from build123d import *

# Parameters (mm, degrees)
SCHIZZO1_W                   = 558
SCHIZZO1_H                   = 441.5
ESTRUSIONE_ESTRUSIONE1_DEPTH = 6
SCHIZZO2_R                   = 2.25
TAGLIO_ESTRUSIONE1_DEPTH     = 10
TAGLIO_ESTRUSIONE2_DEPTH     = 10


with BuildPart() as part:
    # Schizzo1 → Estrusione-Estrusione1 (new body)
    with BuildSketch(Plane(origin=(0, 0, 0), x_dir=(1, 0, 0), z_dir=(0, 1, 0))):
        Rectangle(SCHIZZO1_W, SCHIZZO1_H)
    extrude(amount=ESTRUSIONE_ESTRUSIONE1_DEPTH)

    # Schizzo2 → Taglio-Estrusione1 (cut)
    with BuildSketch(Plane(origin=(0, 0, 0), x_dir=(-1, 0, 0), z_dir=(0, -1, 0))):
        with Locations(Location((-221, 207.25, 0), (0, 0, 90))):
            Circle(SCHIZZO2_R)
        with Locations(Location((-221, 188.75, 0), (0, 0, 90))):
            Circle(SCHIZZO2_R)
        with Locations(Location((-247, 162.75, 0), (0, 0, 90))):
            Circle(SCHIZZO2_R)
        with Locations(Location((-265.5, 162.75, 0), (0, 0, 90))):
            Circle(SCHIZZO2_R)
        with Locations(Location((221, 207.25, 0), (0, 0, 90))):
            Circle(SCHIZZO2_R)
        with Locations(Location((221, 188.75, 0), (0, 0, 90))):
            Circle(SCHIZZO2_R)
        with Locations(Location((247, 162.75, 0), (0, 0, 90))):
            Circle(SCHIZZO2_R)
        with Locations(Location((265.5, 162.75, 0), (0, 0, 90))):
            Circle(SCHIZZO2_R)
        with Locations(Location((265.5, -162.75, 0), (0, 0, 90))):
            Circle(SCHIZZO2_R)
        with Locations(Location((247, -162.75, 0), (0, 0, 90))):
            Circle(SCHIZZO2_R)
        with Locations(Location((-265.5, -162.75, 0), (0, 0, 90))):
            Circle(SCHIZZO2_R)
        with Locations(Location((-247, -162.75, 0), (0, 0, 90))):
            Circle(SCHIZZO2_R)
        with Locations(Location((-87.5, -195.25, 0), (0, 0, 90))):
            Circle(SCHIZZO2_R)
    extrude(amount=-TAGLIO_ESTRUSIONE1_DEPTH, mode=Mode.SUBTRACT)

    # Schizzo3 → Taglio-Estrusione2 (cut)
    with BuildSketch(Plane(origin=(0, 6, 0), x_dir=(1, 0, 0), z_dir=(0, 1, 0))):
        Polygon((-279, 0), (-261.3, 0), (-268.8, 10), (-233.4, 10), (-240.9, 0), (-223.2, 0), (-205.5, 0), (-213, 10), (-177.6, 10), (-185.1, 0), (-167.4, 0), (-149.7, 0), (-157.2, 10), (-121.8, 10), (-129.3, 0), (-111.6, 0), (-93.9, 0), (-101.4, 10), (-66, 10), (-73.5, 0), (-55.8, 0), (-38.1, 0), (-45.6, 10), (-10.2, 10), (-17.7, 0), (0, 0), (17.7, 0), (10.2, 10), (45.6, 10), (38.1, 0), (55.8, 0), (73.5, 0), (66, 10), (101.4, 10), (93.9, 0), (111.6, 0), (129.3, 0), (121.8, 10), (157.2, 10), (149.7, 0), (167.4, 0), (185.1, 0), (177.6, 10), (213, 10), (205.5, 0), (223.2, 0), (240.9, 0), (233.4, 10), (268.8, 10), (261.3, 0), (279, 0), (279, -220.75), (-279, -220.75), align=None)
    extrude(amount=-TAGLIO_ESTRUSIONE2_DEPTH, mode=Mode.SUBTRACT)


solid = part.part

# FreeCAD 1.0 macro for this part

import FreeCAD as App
import Part
import Sketcher

V = App.Vector
Q = App.Units.Quantity

doc = App.newDocument("Part")
body = doc.addObject("PartDesign::Body", "Body")

# Sketch on XZ plane
sketch1 = body.newObject("Sketcher::SketchObject", "Sketch")
sketch1.AttachmentSupport = (doc.getObject("XZ_Plane"), [""])
sketch1.MapMode = "FlatFace"
sketch1.addGeometry([
    Part.LineSegment(V(-279, -221, 0), V(-279, 221, 0)),
    Part.LineSegment(V(-279, 221, 0), V(279, 221, 0)),
    Part.LineSegment(V(279, 221, 0), V(279, -221, 0)),
    Part.LineSegment(V(279, -221, 0), V(-279, -221, 0)),
], False)
sketch1.addConstraint([
    Sketcher.Constraint("Coincident", 0, 2, 1, 1),
    Sketcher.Constraint("Coincident", 1, 2, 2, 1),
    Sketcher.Constraint("Coincident", 2, 2, 3, 1),
    Sketcher.Constraint("Coincident", 3, 2, 0, 1),
    Sketcher.Constraint("Vertical", 0),
    Sketcher.Constraint("Horizontal", 1),
    Sketcher.Constraint("Vertical", 2),
    Sketcher.Constraint("Horizontal", 3),
    Sketcher.Constraint("Symmetric", 0, 2, 2, 2, -1, 1),
    Sketcher.Constraint("DistanceX", 1, 1, 1, 2, Q("558 mm")),
    Sketcher.Constraint("DistanceY", 0, 1, 0, 2, Q("441.5 mm")),
])
pad1 = body.newObject("PartDesign::Pad", "Pad")
pad1.Profile = sketch1
pad1.Length = 6
pad1.Reversed = True

# Sketch on XZ plane
sketch2 = body.newObject("Sketcher::SketchObject", "Sketch001")
sketch2.AttachmentSupport = (doc.getObject("XZ_Plane"), [""])
sketch2.MapMode = "FlatFace"
sketch2.addGeometry([
    Part.Circle(V(221, -207.2, 0), V(0, 0, 1), 2.2),  # 0
    Part.Circle(V(221, -188.8, 0), V(0, 0, 1), 2.2),  # 1
    Part.Circle(V(247, -162.8, 0), V(0, 0, 1), 2.2),  # 2
    Part.Circle(V(265.5, -162.8, 0), V(0, 0, 1), 2.2),  # 3
    Part.Circle(V(-221, -207.2, 0), V(0, 0, 1), 2.2),  # 4
    Part.Circle(V(-221, -188.8, 0), V(0, 0, 1), 2.2),  # 5
    Part.Circle(V(-247, -162.8, 0), V(0, 0, 1), 2.2),  # 6
    Part.Circle(V(-265.5, -162.8, 0), V(0, 0, 1), 2.2),  # 7
    Part.Circle(V(-265.5, 162.8, 0), V(0, 0, 1), 2.2),  # 8
    Part.Circle(V(-247, 162.8, 0), V(0, 0, 1), 2.2),  # 9
    Part.Circle(V(265.5, 162.8, 0), V(0, 0, 1), 2.2),  # 10
    Part.Circle(V(247, 162.8, 0), V(0, 0, 1), 2.2),  # 11
    Part.Circle(V(87.5, 195.2, 0), V(0, 0, 1), 2.2),  # 12
], False)
sketch2.addConstraint([
    Sketcher.Constraint("Equal", 0, 1),
    Sketcher.Constraint("Equal", 1, 2),
    Sketcher.Constraint("Equal", 2, 3),
    Sketcher.Constraint("Equal", 3, 4),
    Sketcher.Constraint("Equal", 4, 5),
    Sketcher.Constraint("Equal", 5, 6),
    Sketcher.Constraint("Equal", 6, 7),
    Sketcher.Constraint("Equal", 7, 8),
    Sketcher.Constraint("Equal", 8, 9),
    Sketcher.Constraint("Equal", 9, 10),
    Sketcher.Constraint("Equal", 10, 11),
    Sketcher.Constraint("Equal", 11, 12),
    Sketcher.Constraint("Symmetric", 3, 3, 8, 3, -1, 1),
    Sketcher.Constraint("Symmetric", 2, 3, 9, 3, -1, 1),
    Sketcher.Constraint("Symmetric", 7, 3, 10, 3, -1, 1),
    Sketcher.Constraint("Symmetric", 6, 3, 11, 3, -1, 1),
    Sketcher.Constraint("Symmetric", 0, 3, 4, 3, -2),
    Sketcher.Constraint("Symmetric", 1, 3, 5, 3, -2),
    Sketcher.Constraint("Symmetric", 2, 3, 6, 3, -2),
    Sketcher.Constraint("Symmetric", 3, 3, 7, 3, -2),
    Sketcher.Constraint("Horizontal", 2, 3, 3, 3),
    Sketcher.Constraint("Vertical", 0, 3, 1, 3),
    Sketcher.Constraint("Diameter", 0, Q("4.5 mm")),
    Sketcher.Constraint("DistanceX", -1, 1, 0, 3, Q("221 mm")),
    Sketcher.Constraint("DistanceX", -1, 1, 2, 3, Q("247 mm")),
    Sketcher.Constraint("DistanceY", 1, 3, 2, 3, Q("26 mm")),
    Sketcher.Constraint("DistanceY", 4, 3, 8, 3, Q("370 mm")),
    Sketcher.Constraint("DistanceX", 12, 3, 10, 3, Q("178 mm")),
    Sketcher.Constraint("DistanceX", 8, 3, 12, 3, Q("353 mm")),
    Sketcher.Constraint("DistanceY", 2, 3, 12, 3, Q("358 mm")),
    Sketcher.Constraint("DistanceY", 0, 3, 1, 3, Q("18.5 mm")),
])
pocket1 = body.newObject("PartDesign::Pocket", "Pocket")
pocket1.Profile = sketch2
pocket1.Length = 10

# Sketch on XZ plane
sketch3 = body.newObject("Sketcher::SketchObject", "Sketch002")
sketch3.AttachmentSupport = (doc.getObject("XZ_Plane"), [""])
sketch3.MapMode = "FlatFace"
sketch3.AttachmentOffset = App.Placement(V(0, 0, -6), App.Rotation())
sketch3.addGeometry([
    Part.LineSegment(V(-261, 0, 0), V(-279, 0, 0)),  # 0
    Part.LineSegment(V(-279, 0, 0), V(-279, 221, 0)),  # 1
    Part.LineSegment(V(-279, 221, 0), V(279, 221, 0)),  # 2
    Part.LineSegment(V(279, 221, 0), V(279, 0, 0)),  # 3
    Part.LineSegment(V(279, 0, 0), V(261, 0, 0)),  # 4
    Part.LineSegment(V(261, 0, 0), V(269, -10, 0)),  # 5
    Part.LineSegment(V(269, -10, 0), V(233, -10, 0)),  # 6
    Part.LineSegment(V(233, -10, 0), V(241, 0, 0)),  # 7
    Part.LineSegment(V(241, 0, 0), V(206, 0, 0)),  # 8
    Part.LineSegment(V(206, 0, 0), V(213, -10, 0)),  # 9
    Part.LineSegment(V(213, -10, 0), V(178, -10, 0)),  # 10
    Part.LineSegment(V(178, -10, 0), V(185, 0, 0)),  # 11
    Part.LineSegment(V(185, 0, 0), V(150, 0, 0)),  # 12
    Part.LineSegment(V(150, 0, 0), V(157, -10, 0)),  # 13
    Part.LineSegment(V(157, -10, 0), V(122, -10, 0)),  # 14
    Part.LineSegment(V(122, -10, 0), V(129, 0, 0)),  # 15
    Part.LineSegment(V(129, 0, 0), V(94, 0, 0)),  # 16
    Part.LineSegment(V(94, 0, 0), V(101, -10, 0)),  # 17
    Part.LineSegment(V(101, -10, 0), V(66, -10, 0)),  # 18
    Part.LineSegment(V(66, -10, 0), V(74, 0, 0)),  # 19
    Part.LineSegment(V(74, 0, 0), V(38, 0, 0)),  # 20
    Part.LineSegment(V(38, 0, 0), V(46, -10, 0)),  # 21
    Part.LineSegment(V(46, -10, 0), V(10, -10, 0)),  # 22
    Part.LineSegment(V(10, -10, 0), V(18, 0, 0)),  # 23
    Part.LineSegment(V(18, 0, 0), V(-18, 0, 0)),  # 24
    Part.LineSegment(V(-18, 0, 0), V(-10, -10, 0)),  # 25
    Part.LineSegment(V(-10, -10, 0), V(-46, -10, 0)),  # 26
    Part.LineSegment(V(-46, -10, 0), V(-38, 0, 0)),  # 27
    Part.LineSegment(V(-38, 0, 0), V(-74, 0, 0)),  # 28
    Part.LineSegment(V(-74, 0, 0), V(-66, -10, 0)),  # 29
    Part.LineSegment(V(-66, -10, 0), V(-101, -10, 0)),  # 30
    Part.LineSegment(V(-101, -10, 0), V(-94, 0, 0)),  # 31
    Part.LineSegment(V(-94, 0, 0), V(-129, 0, 0)),  # 32
    Part.LineSegment(V(-129, 0, 0), V(-122, -10, 0)),  # 33
    Part.LineSegment(V(-122, -10, 0), V(-157, -10, 0)),  # 34
    Part.LineSegment(V(-157, -10, 0), V(-150, 0, 0)),  # 35
    Part.LineSegment(V(-150, 0, 0), V(-185, 0, 0)),  # 36
    Part.LineSegment(V(-185, 0, 0), V(-178, -10, 0)),  # 37
    Part.LineSegment(V(-178, -10, 0), V(-213, -10, 0)),  # 38
    Part.LineSegment(V(-213, -10, 0), V(-206, 0, 0)),  # 39
    Part.LineSegment(V(-206, 0, 0), V(-241, 0, 0)),  # 40
    Part.LineSegment(V(-241, 0, 0), V(-233, -10, 0)),  # 41
    Part.LineSegment(V(-233, -10, 0), V(-269, -10, 0)),  # 42
    Part.LineSegment(V(-269, -10, 0), V(-261, 0, 0)),  # 43
], False)
sketch3.addConstraint([
    Sketcher.Constraint("Coincident", 0, 2, 1, 1),
    Sketcher.Constraint("Coincident", 1, 2, 2, 1),
    Sketcher.Constraint("Coincident", 2, 2, 3, 1),
    Sketcher.Constraint("Coincident", 3, 2, 4, 1),
    Sketcher.Constraint("Coincident", 4, 2, 5, 1),
    Sketcher.Constraint("Coincident", 5, 2, 6, 1),
    Sketcher.Constraint("Coincident", 6, 2, 7, 1),
    Sketcher.Constraint("Coincident", 7, 2, 8, 1),
    Sketcher.Constraint("Coincident", 8, 2, 9, 1),
    Sketcher.Constraint("Coincident", 9, 2, 10, 1),
    Sketcher.Constraint("Coincident", 10, 2, 11, 1),
    Sketcher.Constraint("Coincident", 11, 2, 12, 1),
    Sketcher.Constraint("Coincident", 12, 2, 13, 1),
    Sketcher.Constraint("Coincident", 13, 2, 14, 1),
    Sketcher.Constraint("Coincident", 14, 2, 15, 1),
    Sketcher.Constraint("Coincident", 15, 2, 16, 1),
    Sketcher.Constraint("Coincident", 16, 2, 17, 1),
    Sketcher.Constraint("Coincident", 17, 2, 18, 1),
    Sketcher.Constraint("Coincident", 18, 2, 19, 1),
    Sketcher.Constraint("Coincident", 19, 2, 20, 1),
    Sketcher.Constraint("Coincident", 20, 2, 21, 1),
    Sketcher.Constraint("Coincident", 21, 2, 22, 1),
    Sketcher.Constraint("Coincident", 22, 2, 23, 1),
    Sketcher.Constraint("Coincident", 23, 2, 24, 1),
    Sketcher.Constraint("Coincident", 24, 2, 25, 1),
    Sketcher.Constraint("Coincident", 25, 2, 26, 1),
    Sketcher.Constraint("Coincident", 26, 2, 27, 1),
    Sketcher.Constraint("Coincident", 27, 2, 28, 1),
    Sketcher.Constraint("Coincident", 28, 2, 29, 1),
    Sketcher.Constraint("Coincident", 29, 2, 30, 1),
    Sketcher.Constraint("Coincident", 30, 2, 31, 1),
    Sketcher.Constraint("Coincident", 31, 2, 32, 1),
    Sketcher.Constraint("Coincident", 32, 2, 33, 1),
    Sketcher.Constraint("Coincident", 33, 2, 34, 1),
    Sketcher.Constraint("Coincident", 34, 2, 35, 1),
    Sketcher.Constraint("Coincident", 35, 2, 36, 1),
    Sketcher.Constraint("Coincident", 36, 2, 37, 1),
    Sketcher.Constraint("Coincident", 37, 2, 38, 1),
    Sketcher.Constraint("Coincident", 38, 2, 39, 1),
    Sketcher.Constraint("Coincident", 39, 2, 40, 1),
    Sketcher.Constraint("Coincident", 40, 2, 41, 1),
    Sketcher.Constraint("Coincident", 41, 2, 42, 1),
    Sketcher.Constraint("Coincident", 42, 2, 43, 1),
    Sketcher.Constraint("Coincident", 43, 2, 0, 1),
    Sketcher.Constraint("Horizontal", 0),
    Sketcher.Constraint("Vertical", 1),
    Sketcher.Constraint("Horizontal", 2),
    Sketcher.Constraint("Vertical", 3),
    Sketcher.Constraint("Horizontal", 4),
    Sketcher.Constraint("Horizontal", 6),
    Sketcher.Constraint("Horizontal", 8),
    Sketcher.Constraint("Horizontal", 10),
    Sketcher.Constraint("Horizontal", 12),
    Sketcher.Constraint("Horizontal", 14),
    Sketcher.Constraint("Horizontal", 16),
    Sketcher.Constraint("Horizontal", 18),
    Sketcher.Constraint("Horizontal", 20),
    Sketcher.Constraint("Horizontal", 22),
    Sketcher.Constraint("Horizontal", 24),
    Sketcher.Constraint("Horizontal", 26),
    Sketcher.Constraint("Horizontal", 28),
    Sketcher.Constraint("Horizontal", 30),
    Sketcher.Constraint("Horizontal", 32),
    Sketcher.Constraint("Horizontal", 34),
    Sketcher.Constraint("Horizontal", 36),
    Sketcher.Constraint("Horizontal", 38),
    Sketcher.Constraint("Horizontal", 40),
    Sketcher.Constraint("Horizontal", 42),
    Sketcher.Constraint("Symmetric", 0, 2, 3, 2, -1, 1),
    Sketcher.Constraint("Symmetric", 23, 2, 24, 2, -1, 1),
    Sketcher.Constraint("Symmetric", 20, 2, 27, 2, -1, 1),
    Sketcher.Constraint("Symmetric", 16, 2, 31, 2, -1, 1),
    Sketcher.Constraint("Symmetric", 12, 2, 35, 2, -1, 1),
    Sketcher.Constraint("Symmetric", 8, 2, 39, 2, -1, 1),
    Sketcher.Constraint("Symmetric", 22, 2, 25, 2, -2),
    Sketcher.Constraint("Symmetric", 19, 2, 28, 2, -2),
    Sketcher.Constraint("Symmetric", 18, 2, 29, 2, -2),
    Sketcher.Constraint("Symmetric", 15, 2, 32, 2, -2),
    Sketcher.Constraint("Symmetric", 14, 2, 33, 2, -2),
    Sketcher.Constraint("Symmetric", 11, 2, 36, 2, -2),
    Sketcher.Constraint("Symmetric", 10, 2, 37, 2, -2),
    Sketcher.Constraint("Symmetric", 7, 2, 40, 2, -2),
    Sketcher.Constraint("Symmetric", 6, 2, 41, 2, -2),
    Sketcher.Constraint("Symmetric", 4, 2, 43, 2, -2),
    Sketcher.Constraint("Parallel", 5, 9),
    Sketcher.Constraint("Parallel", 7, 11),
    Sketcher.Constraint("Parallel", 9, 13),
    Sketcher.Constraint("Parallel", 11, 15),
    Sketcher.Constraint("Parallel", 13, 17),
    Sketcher.Constraint("Parallel", 15, 19),
    Sketcher.Constraint("Parallel", 17, 21),
    Sketcher.Constraint("Parallel", 19, 23),
    Sketcher.Constraint("Parallel", 21, 25),
    Sketcher.Constraint("Parallel", 23, 27),
    Sketcher.Constraint("Parallel", 27, 31),
    Sketcher.Constraint("Parallel", 31, 35),
    Sketcher.Constraint("Parallel", 35, 39),
    Sketcher.Constraint("Parallel", 39, 43),
    Sketcher.Constraint("Horizontal", 6, 2, 9, 2),
    Sketcher.Constraint("Horizontal", 10, 2, 13, 2),
    Sketcher.Constraint("Horizontal", 14, 2, 17, 2),
    Sketcher.Constraint("Horizontal", 18, 2, 21, 2),
    Sketcher.Constraint("Equal", 6, 8),
    Sketcher.Constraint("Equal", 8, 10),
    Sketcher.Constraint("Equal", 10, 12),
    Sketcher.Constraint("Equal", 12, 14),
    Sketcher.Constraint("Equal", 14, 16),
    Sketcher.Constraint("Equal", 16, 18),
    Sketcher.Constraint("Equal", 18, 20),
    Sketcher.Constraint("Equal", 20, 22),
    Sketcher.Constraint("Equal", 22, 24),
    Sketcher.Constraint("DistanceX", 2, 1, 2, 2, Q("558 mm")),
    Sketcher.Constraint("DistanceX", 0, 2, 0, 1, Q("17.7 mm")),
    Sketcher.Constraint("DistanceX", 6, 2, 6, 1, Q("35.4 mm")),
    Sketcher.Constraint("DistanceY", 5, 2, -1, 1, Q("10 mm")),
    Sketcher.Constraint("DistanceY", 1, 1, 1, 2, Q("220.75 mm")),
])
pocket2 = body.newObject("PartDesign::Pocket", "Pocket001")
pocket2.Profile = sketch3
pocket2.Length = 10
pocket2.Reversed = True

doc.recompute()
